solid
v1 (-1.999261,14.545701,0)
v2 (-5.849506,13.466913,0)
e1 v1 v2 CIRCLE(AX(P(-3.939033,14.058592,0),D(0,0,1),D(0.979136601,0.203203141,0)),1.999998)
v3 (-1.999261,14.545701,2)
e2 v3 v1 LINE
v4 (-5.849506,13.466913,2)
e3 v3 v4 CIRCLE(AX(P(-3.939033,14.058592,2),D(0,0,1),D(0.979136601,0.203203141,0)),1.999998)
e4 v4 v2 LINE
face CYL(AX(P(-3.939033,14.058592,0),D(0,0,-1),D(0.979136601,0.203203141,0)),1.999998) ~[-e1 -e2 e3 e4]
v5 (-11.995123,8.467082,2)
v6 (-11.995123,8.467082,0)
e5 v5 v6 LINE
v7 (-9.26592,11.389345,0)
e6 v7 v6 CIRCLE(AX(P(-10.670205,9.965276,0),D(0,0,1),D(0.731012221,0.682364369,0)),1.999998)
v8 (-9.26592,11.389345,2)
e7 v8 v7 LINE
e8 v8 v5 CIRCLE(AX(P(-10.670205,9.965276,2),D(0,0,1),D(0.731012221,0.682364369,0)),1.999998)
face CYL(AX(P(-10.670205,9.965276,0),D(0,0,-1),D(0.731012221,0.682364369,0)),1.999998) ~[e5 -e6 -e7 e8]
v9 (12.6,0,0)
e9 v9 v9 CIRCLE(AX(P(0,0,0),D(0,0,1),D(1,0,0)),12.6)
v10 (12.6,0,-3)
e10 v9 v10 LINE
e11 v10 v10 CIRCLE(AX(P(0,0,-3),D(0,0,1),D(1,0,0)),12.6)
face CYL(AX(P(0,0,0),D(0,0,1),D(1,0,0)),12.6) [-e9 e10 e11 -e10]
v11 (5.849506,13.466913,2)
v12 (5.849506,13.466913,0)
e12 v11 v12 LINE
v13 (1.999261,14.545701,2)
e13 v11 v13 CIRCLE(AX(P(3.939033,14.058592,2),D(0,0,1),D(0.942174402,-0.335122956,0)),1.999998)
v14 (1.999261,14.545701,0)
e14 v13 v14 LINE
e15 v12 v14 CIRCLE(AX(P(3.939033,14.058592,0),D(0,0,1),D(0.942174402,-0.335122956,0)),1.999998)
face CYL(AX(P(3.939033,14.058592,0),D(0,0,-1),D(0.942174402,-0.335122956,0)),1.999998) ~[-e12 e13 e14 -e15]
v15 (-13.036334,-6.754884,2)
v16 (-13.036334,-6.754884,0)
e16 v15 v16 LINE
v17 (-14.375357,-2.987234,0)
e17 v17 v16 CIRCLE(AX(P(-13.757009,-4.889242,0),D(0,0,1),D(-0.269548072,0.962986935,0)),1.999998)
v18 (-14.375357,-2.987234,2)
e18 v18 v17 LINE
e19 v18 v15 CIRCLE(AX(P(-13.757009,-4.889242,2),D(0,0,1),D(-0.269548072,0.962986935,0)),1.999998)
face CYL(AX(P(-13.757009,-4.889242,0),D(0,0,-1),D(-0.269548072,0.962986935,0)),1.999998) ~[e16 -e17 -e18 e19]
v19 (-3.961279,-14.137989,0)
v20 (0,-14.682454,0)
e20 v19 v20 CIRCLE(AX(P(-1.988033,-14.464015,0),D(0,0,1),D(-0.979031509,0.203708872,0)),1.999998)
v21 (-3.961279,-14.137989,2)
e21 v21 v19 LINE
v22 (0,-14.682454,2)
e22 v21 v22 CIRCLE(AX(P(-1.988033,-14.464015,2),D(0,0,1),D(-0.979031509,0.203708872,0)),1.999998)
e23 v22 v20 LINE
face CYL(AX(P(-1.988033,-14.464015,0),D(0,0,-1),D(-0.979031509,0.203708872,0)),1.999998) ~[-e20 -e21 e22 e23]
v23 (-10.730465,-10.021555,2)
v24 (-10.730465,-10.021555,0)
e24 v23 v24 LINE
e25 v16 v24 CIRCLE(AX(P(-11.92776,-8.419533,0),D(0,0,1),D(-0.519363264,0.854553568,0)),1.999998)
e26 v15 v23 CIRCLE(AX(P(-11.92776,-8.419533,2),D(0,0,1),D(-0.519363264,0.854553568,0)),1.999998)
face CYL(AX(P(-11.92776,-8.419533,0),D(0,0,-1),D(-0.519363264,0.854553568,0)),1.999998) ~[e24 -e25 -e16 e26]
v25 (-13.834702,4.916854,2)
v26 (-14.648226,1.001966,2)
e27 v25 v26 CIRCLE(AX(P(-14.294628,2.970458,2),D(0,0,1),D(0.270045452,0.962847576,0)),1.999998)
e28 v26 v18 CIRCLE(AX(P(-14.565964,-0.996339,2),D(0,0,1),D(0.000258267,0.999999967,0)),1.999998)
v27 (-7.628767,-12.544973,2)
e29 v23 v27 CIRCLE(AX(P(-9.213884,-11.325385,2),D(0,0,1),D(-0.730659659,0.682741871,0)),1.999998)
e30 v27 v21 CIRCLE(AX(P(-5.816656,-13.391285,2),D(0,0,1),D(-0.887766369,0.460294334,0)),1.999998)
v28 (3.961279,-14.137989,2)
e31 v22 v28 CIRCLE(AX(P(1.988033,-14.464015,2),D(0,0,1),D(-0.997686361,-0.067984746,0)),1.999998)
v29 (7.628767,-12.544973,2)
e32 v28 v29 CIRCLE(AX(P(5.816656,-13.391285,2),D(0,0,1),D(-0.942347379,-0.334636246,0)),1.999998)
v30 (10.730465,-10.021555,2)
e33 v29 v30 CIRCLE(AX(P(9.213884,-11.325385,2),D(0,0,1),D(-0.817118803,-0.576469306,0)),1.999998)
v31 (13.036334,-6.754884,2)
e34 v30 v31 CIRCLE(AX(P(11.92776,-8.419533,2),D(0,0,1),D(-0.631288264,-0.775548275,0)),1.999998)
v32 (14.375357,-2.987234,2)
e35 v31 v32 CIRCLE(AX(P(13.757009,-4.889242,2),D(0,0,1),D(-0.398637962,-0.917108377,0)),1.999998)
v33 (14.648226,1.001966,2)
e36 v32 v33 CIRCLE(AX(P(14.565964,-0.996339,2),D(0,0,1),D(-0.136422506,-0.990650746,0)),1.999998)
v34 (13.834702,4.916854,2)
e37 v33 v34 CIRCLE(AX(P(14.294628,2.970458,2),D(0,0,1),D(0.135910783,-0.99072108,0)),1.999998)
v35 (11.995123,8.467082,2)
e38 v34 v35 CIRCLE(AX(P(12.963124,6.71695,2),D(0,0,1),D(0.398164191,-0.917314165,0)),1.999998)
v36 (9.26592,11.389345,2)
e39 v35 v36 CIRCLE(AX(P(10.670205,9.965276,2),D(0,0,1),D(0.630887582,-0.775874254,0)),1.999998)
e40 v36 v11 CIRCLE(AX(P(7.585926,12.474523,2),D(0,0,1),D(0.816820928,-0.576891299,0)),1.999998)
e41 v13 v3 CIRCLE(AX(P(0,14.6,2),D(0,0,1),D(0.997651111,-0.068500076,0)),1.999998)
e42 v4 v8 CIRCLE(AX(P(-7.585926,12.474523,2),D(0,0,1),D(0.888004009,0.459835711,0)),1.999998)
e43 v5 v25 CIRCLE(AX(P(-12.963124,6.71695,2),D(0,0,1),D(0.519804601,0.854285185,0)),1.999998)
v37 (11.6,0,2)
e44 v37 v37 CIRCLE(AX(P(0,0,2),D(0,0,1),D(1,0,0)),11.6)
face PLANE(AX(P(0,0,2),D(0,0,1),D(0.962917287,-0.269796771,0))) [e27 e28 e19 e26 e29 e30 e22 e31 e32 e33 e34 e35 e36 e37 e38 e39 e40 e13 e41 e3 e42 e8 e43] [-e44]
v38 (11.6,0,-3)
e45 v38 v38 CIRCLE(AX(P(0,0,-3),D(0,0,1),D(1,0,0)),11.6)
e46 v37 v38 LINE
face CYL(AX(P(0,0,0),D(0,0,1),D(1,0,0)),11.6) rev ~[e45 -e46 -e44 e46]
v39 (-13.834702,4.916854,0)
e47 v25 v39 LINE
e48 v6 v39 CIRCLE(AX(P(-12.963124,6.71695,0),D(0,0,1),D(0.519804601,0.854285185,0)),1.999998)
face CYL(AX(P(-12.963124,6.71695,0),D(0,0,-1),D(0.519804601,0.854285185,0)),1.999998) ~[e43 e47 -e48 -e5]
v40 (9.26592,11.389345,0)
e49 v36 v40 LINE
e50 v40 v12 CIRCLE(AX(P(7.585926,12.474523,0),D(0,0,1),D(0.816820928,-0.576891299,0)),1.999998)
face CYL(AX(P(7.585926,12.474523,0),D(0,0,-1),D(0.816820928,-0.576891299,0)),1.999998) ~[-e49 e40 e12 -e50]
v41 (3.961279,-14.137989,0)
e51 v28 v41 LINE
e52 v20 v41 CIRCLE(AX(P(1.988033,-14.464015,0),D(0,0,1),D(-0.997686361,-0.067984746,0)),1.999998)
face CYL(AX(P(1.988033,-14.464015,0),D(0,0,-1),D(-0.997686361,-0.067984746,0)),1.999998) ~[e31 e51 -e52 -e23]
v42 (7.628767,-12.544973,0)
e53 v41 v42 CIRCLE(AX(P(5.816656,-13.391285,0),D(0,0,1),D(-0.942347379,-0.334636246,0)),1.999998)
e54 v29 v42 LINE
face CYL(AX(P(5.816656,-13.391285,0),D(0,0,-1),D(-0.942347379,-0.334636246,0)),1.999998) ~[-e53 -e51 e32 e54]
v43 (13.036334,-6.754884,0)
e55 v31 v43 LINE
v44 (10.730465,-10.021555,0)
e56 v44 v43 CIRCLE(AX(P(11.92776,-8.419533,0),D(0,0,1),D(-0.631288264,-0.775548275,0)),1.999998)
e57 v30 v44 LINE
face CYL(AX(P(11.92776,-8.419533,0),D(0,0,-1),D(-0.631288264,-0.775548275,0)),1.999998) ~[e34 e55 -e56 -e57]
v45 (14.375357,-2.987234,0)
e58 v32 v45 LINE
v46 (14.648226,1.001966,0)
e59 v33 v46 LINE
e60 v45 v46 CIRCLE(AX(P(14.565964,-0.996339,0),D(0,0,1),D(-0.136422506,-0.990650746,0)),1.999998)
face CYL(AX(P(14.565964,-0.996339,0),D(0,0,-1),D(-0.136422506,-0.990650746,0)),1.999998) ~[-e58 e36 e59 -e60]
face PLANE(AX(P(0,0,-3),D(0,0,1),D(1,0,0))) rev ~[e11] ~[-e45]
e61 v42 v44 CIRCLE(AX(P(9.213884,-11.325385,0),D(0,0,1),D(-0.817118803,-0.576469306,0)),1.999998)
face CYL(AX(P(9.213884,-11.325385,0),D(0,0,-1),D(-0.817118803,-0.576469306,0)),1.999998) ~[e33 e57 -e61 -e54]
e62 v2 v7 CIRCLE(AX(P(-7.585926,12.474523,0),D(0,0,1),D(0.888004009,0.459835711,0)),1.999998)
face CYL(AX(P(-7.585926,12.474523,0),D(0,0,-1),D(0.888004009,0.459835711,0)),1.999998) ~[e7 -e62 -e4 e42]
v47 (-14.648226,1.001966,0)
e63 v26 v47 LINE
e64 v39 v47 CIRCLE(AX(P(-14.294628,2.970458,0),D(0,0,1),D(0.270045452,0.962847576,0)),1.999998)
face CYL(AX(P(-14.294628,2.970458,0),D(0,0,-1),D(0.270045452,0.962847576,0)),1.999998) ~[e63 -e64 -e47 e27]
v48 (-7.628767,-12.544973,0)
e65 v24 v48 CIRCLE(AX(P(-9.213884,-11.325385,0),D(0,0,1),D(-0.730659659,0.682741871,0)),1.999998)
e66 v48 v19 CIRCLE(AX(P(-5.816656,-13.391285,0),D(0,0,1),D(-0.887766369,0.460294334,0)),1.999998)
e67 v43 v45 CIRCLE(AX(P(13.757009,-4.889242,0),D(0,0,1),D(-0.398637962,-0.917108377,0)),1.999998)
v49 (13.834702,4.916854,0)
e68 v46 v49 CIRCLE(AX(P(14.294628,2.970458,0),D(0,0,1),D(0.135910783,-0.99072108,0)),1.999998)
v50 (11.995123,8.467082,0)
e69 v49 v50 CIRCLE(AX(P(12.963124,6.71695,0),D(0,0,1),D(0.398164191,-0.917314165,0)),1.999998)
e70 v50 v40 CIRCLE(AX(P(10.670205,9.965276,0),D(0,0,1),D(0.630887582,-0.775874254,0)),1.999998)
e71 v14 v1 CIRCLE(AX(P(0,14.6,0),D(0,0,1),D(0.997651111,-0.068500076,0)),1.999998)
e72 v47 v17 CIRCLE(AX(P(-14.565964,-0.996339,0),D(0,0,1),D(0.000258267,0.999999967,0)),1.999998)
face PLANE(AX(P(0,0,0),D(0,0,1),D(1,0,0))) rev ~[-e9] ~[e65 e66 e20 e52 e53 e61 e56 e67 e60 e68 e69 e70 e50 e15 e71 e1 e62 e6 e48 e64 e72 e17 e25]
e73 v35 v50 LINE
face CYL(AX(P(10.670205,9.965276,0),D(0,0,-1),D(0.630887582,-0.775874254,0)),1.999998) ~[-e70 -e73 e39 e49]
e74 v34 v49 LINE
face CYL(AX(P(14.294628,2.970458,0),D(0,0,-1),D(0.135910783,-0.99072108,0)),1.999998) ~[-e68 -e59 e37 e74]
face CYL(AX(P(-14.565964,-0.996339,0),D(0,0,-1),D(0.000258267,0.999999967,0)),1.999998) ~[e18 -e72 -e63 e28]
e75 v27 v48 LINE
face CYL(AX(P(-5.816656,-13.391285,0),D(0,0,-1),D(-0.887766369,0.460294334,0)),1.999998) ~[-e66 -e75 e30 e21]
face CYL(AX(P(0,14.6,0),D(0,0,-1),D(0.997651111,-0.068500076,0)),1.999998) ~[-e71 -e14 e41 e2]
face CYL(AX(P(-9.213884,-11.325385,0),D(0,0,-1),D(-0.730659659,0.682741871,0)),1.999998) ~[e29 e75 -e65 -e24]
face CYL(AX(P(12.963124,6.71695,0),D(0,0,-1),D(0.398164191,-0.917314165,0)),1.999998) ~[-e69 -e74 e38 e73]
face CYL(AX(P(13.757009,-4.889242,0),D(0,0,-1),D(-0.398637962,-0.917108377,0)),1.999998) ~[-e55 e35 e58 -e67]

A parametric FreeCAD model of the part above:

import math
import FreeCAD as App
import Part
import Sketcher

doc = App.newDocument("Part")
body = doc.addObject("PartDesign::Body", "Body")

# Sketch on XY plane
sketch1 = body.newObject("Sketcher::SketchObject", "Sketch")
sketch1.AttachmentSupport = (doc.getObject("XY_Plane"), [""])
sketch1.MapMode = "FlatFace"
sketch1.addGeometry([
    Part.Circle(App.Vector(0, 0, 0), App.Vector(0, 0, 1), 13),
    Part.Circle(App.Vector(0, 0, 0), App.Vector(0, 0, 1), 12),
], False)
sketch1.addConstraint([
    Sketcher.Constraint("Coincident", 0, 3, -1, 1),
    Sketcher.Constraint("Coincident", 1, 3, -1, 1),
    Sketcher.Constraint("Diameter", 0, 25.2),
    Sketcher.Constraint("Diameter", 1, 23.2),
])
pad1 = body.newObject("PartDesign::Pad", "Pad")
pad1.Profile = sketch1
pad1.Length = 3
pad1.Reversed = True

# Sketch on XY plane
sketch2 = body.newObject("Sketcher::SketchObject", "Sketch001")
sketch2.AttachmentSupport = (doc.getObject("XY_Plane"), [""])
sketch2.MapMode = "FlatFace"
sketch2.addGeometry([
    Part.ArcOfCircle(Part.Circle(App.Vector(0, 0, 0), App.Vector(0, 0, 1), 14.6), math.radians(98), math.radians(442)),
    Part.ArcOfCircle(Part.Circle(App.Vector(0, 14.6, 0), App.Vector(0, 0, 1), 2), math.radians(-4), math.radians(184)),
    Part.Circle(App.Vector(0, 0, 0), App.Vector(0, 0, 1), 11.6),
], False)
sketch2.addConstraint([
    Sketcher.Constraint("Coincident", 0, 1, 1, 2),
    Sketcher.Constraint("Coincident", 1, 1, 0, 2),
    Sketcher.Constraint("Coincident", 0, 3, -1, 1),
    Sketcher.Constraint("Coincident", 2, 3, -1, 1),
    Sketcher.Constraint("PointOnObject", 1, 3, -2),
    Sketcher.Constraint("Radius", 1, 2.0),
    Sketcher.Constraint("Diameter", 2, 23.2),
    Sketcher.Constraint("Radius", 0, 14.6),
    Sketcher.Constraint("DistanceY", -1, 1, 1, 3, 14.6),
])
pad2 = body.newObject("PartDesign::Pad", "Pad001")
pad2.Profile = sketch2
pad2.Length = 2
doc.recompute()

polarpattern = body.newObject("PartDesign::PolarPattern", "PolarPattern")
polarpattern.Originals = [pad2]
polarpattern.Axis = (doc.getObject("Z_Axis"), [""])
polarpattern.Angle = 360
polarpattern.Occurrences = 23
body.Tip = polarpattern

doc.recompute()
